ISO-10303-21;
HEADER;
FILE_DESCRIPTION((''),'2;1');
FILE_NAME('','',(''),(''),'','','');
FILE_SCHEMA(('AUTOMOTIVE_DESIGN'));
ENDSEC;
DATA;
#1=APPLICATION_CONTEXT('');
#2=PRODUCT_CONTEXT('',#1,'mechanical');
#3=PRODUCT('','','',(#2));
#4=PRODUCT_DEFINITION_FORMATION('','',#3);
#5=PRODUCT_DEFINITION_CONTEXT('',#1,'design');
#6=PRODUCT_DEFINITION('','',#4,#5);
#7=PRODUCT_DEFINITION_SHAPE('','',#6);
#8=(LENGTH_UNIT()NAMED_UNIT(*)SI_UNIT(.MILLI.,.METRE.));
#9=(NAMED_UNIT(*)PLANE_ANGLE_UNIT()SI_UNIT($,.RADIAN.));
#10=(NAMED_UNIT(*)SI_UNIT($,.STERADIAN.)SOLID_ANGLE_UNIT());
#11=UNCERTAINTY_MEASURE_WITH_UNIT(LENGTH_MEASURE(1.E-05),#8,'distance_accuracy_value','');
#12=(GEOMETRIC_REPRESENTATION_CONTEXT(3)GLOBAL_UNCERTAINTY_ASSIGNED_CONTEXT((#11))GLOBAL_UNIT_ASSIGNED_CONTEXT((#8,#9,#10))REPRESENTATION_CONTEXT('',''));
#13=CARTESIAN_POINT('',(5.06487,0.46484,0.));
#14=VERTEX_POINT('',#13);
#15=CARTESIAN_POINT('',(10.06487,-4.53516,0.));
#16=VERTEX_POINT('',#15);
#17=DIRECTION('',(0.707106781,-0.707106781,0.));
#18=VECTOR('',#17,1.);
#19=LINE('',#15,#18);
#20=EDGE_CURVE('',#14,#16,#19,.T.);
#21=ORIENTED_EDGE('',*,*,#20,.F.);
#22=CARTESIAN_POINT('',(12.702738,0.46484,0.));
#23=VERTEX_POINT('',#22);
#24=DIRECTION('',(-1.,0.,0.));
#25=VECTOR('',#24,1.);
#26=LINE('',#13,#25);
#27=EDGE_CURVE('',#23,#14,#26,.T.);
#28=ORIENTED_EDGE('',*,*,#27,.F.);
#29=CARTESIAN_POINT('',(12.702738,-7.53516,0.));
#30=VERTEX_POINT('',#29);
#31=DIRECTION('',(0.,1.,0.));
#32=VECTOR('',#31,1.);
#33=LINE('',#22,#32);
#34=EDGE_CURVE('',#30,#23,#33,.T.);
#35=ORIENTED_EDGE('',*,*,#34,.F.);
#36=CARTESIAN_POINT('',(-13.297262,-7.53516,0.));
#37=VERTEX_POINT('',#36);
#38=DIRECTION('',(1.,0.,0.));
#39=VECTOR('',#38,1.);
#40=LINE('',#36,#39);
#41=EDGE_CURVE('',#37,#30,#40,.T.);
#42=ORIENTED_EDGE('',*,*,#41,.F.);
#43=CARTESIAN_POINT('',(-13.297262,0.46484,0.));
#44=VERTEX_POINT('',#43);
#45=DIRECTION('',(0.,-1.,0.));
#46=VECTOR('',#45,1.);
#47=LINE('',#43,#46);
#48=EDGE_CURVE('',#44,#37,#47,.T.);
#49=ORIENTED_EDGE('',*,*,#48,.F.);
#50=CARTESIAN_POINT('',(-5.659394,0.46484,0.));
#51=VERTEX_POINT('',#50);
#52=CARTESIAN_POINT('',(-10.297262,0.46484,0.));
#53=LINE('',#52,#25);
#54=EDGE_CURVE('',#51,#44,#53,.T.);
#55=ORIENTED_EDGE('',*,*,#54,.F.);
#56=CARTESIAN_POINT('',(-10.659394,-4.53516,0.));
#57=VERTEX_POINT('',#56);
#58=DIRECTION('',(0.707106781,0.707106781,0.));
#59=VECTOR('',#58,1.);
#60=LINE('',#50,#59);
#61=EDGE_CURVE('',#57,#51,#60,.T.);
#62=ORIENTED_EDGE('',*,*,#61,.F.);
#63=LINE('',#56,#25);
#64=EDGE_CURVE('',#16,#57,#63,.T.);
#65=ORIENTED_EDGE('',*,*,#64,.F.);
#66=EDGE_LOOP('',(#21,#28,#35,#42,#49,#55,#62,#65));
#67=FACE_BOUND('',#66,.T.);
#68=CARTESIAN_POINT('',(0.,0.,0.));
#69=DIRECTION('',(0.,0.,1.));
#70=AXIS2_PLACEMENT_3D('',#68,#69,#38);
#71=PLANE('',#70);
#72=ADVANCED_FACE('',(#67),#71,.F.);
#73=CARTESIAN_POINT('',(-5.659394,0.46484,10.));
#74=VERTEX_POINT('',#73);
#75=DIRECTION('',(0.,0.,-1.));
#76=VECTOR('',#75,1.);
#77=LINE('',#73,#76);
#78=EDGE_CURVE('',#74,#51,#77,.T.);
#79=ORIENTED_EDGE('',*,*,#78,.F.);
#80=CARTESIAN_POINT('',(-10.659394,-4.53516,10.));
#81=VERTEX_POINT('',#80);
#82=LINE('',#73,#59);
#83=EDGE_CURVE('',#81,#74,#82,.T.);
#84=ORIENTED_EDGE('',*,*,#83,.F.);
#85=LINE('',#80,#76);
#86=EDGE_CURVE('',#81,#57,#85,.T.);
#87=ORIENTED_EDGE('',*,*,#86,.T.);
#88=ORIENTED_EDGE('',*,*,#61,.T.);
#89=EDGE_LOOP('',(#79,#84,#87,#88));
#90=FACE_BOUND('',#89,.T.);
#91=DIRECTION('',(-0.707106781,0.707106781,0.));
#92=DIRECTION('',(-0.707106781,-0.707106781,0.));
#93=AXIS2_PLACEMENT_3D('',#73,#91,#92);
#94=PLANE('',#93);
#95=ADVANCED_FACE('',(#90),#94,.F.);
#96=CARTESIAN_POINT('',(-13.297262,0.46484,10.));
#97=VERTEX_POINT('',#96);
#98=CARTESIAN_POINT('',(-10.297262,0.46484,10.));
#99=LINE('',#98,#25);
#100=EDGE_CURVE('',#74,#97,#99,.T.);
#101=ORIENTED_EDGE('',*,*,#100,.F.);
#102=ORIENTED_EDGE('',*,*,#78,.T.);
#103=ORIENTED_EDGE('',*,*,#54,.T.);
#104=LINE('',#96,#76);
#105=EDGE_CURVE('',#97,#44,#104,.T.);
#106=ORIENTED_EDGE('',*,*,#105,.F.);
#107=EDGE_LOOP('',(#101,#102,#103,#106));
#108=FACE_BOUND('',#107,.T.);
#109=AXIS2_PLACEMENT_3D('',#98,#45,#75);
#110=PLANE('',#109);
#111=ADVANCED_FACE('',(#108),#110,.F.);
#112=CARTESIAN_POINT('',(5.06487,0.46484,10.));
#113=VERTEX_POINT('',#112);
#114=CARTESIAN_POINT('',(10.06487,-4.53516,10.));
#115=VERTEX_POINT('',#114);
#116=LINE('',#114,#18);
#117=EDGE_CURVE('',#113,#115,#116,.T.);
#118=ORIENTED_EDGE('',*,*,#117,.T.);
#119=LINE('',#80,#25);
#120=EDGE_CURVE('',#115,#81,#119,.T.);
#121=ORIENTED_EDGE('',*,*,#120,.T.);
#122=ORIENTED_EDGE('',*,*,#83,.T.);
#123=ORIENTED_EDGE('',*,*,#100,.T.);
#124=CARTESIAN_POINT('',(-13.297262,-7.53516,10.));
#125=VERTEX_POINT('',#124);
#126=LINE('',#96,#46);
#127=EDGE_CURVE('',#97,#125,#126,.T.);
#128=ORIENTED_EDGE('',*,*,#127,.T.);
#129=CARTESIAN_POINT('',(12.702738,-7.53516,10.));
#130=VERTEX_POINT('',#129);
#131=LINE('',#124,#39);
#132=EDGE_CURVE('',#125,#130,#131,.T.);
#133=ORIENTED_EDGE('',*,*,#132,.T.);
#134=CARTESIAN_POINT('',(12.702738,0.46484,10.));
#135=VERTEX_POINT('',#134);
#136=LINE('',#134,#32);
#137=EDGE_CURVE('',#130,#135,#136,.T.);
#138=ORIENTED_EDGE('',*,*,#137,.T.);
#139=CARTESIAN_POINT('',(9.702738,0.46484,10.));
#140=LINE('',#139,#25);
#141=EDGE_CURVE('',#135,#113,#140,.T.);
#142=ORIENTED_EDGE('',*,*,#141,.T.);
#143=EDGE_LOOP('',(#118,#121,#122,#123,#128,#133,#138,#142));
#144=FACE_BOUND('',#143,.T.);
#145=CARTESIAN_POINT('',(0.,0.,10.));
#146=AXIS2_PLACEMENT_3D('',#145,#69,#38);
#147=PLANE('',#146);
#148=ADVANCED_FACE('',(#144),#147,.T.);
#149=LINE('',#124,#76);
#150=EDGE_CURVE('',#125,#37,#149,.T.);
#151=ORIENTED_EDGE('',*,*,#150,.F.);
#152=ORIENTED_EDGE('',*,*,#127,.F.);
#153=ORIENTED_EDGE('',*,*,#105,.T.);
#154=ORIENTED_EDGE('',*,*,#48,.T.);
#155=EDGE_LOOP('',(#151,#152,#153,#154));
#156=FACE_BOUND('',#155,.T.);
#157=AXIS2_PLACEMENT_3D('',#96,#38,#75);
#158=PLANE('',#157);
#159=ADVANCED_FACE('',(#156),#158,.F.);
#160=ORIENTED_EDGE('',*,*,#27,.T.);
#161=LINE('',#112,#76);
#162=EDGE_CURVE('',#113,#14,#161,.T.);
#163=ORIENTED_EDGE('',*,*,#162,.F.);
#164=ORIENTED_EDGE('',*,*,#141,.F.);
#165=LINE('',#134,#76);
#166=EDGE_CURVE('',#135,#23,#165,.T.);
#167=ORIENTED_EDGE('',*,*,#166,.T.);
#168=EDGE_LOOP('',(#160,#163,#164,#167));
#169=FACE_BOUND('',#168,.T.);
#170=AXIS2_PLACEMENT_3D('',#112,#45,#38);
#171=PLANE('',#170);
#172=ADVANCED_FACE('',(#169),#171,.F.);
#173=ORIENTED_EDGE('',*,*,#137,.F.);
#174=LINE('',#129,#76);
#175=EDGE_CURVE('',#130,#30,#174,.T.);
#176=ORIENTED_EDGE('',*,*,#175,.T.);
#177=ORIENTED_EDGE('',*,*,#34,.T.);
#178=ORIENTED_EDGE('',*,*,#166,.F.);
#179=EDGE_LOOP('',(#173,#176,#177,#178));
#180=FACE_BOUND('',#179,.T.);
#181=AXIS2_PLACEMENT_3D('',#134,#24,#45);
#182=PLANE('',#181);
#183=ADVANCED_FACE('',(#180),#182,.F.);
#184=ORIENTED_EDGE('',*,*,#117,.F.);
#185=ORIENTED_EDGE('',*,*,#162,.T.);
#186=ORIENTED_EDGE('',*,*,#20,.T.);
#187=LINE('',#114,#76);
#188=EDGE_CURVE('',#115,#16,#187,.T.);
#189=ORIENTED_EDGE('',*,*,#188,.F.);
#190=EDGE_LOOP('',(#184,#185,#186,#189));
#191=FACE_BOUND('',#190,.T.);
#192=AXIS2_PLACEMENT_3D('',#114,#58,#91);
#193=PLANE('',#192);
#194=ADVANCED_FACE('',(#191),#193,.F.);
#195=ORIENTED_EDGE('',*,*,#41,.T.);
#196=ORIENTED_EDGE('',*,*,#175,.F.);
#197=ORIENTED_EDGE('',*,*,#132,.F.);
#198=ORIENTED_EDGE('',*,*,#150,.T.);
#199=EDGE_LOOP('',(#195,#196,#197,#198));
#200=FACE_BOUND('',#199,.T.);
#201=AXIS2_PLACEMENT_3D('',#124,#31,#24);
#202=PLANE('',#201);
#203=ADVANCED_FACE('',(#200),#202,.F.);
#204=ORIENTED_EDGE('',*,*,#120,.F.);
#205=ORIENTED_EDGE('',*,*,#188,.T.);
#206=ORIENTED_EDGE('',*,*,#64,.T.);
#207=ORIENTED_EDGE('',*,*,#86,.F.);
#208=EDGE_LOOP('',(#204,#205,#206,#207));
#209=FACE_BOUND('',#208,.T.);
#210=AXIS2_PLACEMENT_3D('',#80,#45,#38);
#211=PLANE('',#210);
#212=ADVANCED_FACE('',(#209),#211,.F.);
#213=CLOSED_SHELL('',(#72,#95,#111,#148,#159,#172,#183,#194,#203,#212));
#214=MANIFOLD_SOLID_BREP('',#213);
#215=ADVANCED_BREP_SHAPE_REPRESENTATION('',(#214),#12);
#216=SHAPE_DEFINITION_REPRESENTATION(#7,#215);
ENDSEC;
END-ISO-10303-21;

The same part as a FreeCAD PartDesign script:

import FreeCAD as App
import Part
import Sketcher
from FreeCAD import Vector
Q = App.Units.Quantity

doc = App.newDocument("Part")
body = doc.addObject("PartDesign::Body", "Body")

sketch1 = body.newObject("Sketcher::SketchObject", "Sketch")
sketch1.AttachmentSupport = (doc.getObject("XY_Plane"), [""])
sketch1.MapMode = "FlatFace"
sketch1.addGeometry(Part.LineSegment(Vector(-6, 0, 0), Vector(-13, 0, 0)), False)
sketch1.addGeometry(Part.LineSegment(Vector(-13, 0, 0), Vector(-13, -8, 0)), False)
sketch1.addGeometry(Part.LineSegment(Vector(-13, -8, 0), Vector(13, -8, 0)), False)
sketch1.addGeometry(Part.LineSegment(Vector(13, -8, 0), Vector(13, 0, 0)), False)
sketch1.addGeometry(Part.LineSegment(Vector(13, 0, 0), Vector(5, 0, 0)), False)
sketch1.addGeometry(Part.LineSegment(Vector(5, 0, 0), Vector(10, -5, 0)), False)
sketch1.addGeometry(Part.LineSegment(Vector(10, -5, 0), Vector(-11, -5, 0)), False)
sketch1.addGeometry(Part.LineSegment(Vector(-11, -5, 0), Vector(-6, 0, 0)), False)
sketch1.addConstraint(Sketcher.Constraint("Coincident", 0, 2, 1, 1))
sketch1.addConstraint(Sketcher.Constraint("Coincident", 1, 2, 2, 1))
sketch1.addConstraint(Sketcher.Constraint("Coincident", 2, 2, 3, 1))
sketch1.addConstraint(Sketcher.Constraint("Coincident", 3, 2, 4, 1))
sketch1.addConstraint(Sketcher.Constraint("Coincident", 4, 2, 5, 1))
sketch1.addConstraint(Sketcher.Constraint("Coincident", 5, 2, 6, 1))
sketch1.addConstraint(Sketcher.Constraint("Coincident", 6, 2, 7, 1))
sketch1.addConstraint(Sketcher.Constraint("Coincident", 7, 2, 0, 1))
sketch1.addConstraint(Sketcher.Constraint("Horizontal", 0))
sketch1.addConstraint(Sketcher.Constraint("Vertical", 1))
sketch1.addConstraint(Sketcher.Constraint("Horizontal", 2))
sketch1.addConstraint(Sketcher.Constraint("Vertical", 3))
sketch1.addConstraint(Sketcher.Constraint("Horizontal", 4))
sketch1.addConstraint(Sketcher.Constraint("Horizontal", 6))
sketch1.addConstraint(Sketcher.Constraint("Perpendicular", 5, 7))
sketch1.addConstraint(Sketcher.Constraint("Horizontal", 0, 2, 3, 2))
sketch1.addConstraint(Sketcher.Constraint("Equal", 0, 4))
sketch1.addConstraint(Sketcher.Constraint("Equal", 5, 7))
sketch1.addConstraint(Sketcher.Constraint("DistanceX", 2, 1, 2, 2, Q("26 mm")))
sketch1.addConstraint(Sketcher.Constraint("DistanceY", 1, 2, 1, 1, Q("8 mm")))
sketch1.addConstraint(Sketcher.Constraint("DistanceY", 2, 2, 5, 2, Q("3 mm")))
sketch1.addConstraint(Sketcher.Constraint("DistanceX", 0, 2, 0, 1, Q("7.637868 mm")))
sketch1.addConstraint(Sketcher.Constraint("DistanceX", 0, 2, -1, 1, Q("13.297262 mm")))
sketch1.addConstraint(Sketcher.Constraint("DistanceY", -1, 1, 0, 2, Q("0.46484 mm")))
pad1 = body.newObject("PartDesign::Pad", "Pad")
pad1.Profile = sketch1
pad1.Length = 10

doc.recompute()
